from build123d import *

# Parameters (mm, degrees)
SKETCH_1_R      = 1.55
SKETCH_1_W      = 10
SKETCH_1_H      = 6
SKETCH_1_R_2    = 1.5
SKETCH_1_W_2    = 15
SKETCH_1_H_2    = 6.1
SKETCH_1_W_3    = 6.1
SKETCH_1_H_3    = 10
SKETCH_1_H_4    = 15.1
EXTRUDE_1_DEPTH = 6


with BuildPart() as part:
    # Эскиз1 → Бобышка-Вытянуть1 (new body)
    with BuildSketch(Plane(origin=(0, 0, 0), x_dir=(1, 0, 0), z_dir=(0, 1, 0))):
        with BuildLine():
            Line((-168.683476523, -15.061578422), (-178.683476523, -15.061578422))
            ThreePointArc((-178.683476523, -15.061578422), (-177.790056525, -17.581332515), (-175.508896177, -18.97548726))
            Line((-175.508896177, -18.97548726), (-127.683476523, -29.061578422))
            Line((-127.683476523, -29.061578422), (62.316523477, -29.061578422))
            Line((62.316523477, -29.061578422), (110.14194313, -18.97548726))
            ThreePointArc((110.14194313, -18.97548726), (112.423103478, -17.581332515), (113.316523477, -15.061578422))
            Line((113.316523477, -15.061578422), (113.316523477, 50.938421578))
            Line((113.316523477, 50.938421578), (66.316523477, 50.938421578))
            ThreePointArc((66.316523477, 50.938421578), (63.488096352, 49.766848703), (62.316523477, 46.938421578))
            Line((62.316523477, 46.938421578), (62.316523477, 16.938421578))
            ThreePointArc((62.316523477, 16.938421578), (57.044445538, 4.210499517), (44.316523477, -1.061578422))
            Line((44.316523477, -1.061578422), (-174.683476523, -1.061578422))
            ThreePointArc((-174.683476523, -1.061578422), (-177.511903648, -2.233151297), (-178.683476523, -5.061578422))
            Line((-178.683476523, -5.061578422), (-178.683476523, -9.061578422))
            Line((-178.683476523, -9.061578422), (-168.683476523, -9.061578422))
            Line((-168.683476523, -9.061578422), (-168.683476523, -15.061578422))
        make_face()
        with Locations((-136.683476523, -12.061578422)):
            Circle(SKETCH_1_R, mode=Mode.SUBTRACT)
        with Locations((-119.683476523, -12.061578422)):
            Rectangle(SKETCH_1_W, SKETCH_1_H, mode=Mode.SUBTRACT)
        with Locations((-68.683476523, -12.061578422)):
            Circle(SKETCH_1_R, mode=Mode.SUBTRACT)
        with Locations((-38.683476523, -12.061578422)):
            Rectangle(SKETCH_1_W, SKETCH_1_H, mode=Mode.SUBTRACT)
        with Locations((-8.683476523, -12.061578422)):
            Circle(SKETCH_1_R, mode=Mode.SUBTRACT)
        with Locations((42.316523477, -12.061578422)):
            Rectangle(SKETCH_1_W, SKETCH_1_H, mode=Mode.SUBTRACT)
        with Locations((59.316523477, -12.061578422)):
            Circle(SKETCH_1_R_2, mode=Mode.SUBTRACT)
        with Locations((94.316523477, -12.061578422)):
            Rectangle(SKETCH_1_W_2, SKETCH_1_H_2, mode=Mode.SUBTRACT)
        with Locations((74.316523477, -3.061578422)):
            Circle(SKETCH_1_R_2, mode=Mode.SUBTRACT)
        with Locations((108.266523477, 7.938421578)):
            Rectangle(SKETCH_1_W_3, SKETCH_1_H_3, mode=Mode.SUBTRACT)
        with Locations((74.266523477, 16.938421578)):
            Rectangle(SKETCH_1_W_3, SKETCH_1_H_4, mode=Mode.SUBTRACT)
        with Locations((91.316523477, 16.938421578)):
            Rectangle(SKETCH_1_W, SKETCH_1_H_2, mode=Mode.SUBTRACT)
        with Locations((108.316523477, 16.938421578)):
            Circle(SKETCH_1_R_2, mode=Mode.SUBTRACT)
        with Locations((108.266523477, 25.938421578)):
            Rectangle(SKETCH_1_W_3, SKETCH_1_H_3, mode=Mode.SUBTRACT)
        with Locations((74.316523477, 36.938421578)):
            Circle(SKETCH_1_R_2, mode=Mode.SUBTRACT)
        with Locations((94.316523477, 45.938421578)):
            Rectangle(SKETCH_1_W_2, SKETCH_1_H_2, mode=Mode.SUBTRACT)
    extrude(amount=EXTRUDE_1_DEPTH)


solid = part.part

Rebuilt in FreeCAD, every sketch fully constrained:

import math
import FreeCAD as App
import Part
import Sketcher
Q = App.Units.Quantity


def add_polygon(sketch, points):
    """Adds a closed chain of lines whose ends are joined by coincident constraints."""
    first, n = sketch.GeometryCount, len(points)
    for a, b in zip(points, points[1:] + points[:1]):
        sketch.addGeometry(Part.LineSegment(App.Vector(*a, 0), App.Vector(*b, 0)), False)
    for i in range(n):
        sketch.addConstraint(Sketcher.Constraint("Coincident", first + i, 2, first + (i + 1) % n, 1))

doc = App.newDocument("Part")
body = doc.addObject("PartDesign::Body", "Body")

# Sketch on XZ plane
sketch1 = body.newObject("Sketcher::SketchObject", "Sketch")
sketch1.AttachmentSupport = (doc.getObject("XZ_Plane"), [""])
sketch1.MapMode = "FlatFace"
sketch1.addGeometry(Part.LineSegment(App.Vector(-168.683477, 15.061578, 0), App.Vector(-178.683477, 15.061578, 0)), False)  # 0
sketch1.addGeometry(Part.ArcOfCircle(Part.Circle(App.Vector(-174.683477, 15.061578, 0), App.Vector(0, 0, 1), 4), math.radians(101.908826), math.radians(180)), False)  # 1
sketch1.addGeometry(Part.LineSegment(App.Vector(-175.508896, 18.975487, 0), App.Vector(-127.683477, 29.061578, 0)), False)  # 2
sketch1.addGeometry(Part.LineSegment(App.Vector(-127.683477, 29.061578, 0), App.Vector(62.316523, 29.061578, 0)), False)  # 3
sketch1.addGeometry(Part.LineSegment(App.Vector(62.316523, 29.061578, 0), App.Vector(110.141943, 18.975487, 0)), False)  # 4
sketch1.addGeometry(Part.ArcOfCircle(Part.Circle(App.Vector(109.316523, 15.061578, 0), App.Vector(0, 0, 1), 4), math.radians(0), math.radians(78.091174)), False)  # 5
sketch1.addGeometry(Part.LineSegment(App.Vector(113.316523, 15.061578, 0), App.Vector(113.316523, -50.938422, 0)), False)  # 6
sketch1.addGeometry(Part.LineSegment(App.Vector(113.316523, -50.938422, 0), App.Vector(66.316523, -50.938422, 0)), False)  # 7
sketch1.addGeometry(Part.ArcOfCircle(Part.Circle(App.Vector(66.316523, -46.938422, 0), App.Vector(0, 0, 1), 4), math.radians(180), math.radians(270)), False)  # 8
sketch1.addGeometry(Part.LineSegment(App.Vector(62.316523, -46.938422, 0), App.Vector(62.316523, -16.938422, 0)), False)  # 9
sketch1.addGeometry(Part.ArcOfCircle(Part.Circle(App.Vector(44.316523, -16.938422, 0), App.Vector(0, 0, 1), 18), math.radians(0), math.radians(90)), False)  # 10
sketch1.addGeometry(Part.LineSegment(App.Vector(44.316523, 1.061578, 0), App.Vector(-174.683477, 1.061578, 0)), False)  # 11
sketch1.addGeometry(Part.ArcOfCircle(Part.Circle(App.Vector(-174.683477, 5.061578, 0), App.Vector(0, 0, 1), 4), math.radians(180), math.radians(270)), False)  # 12
sketch1.addGeometry(Part.LineSegment(App.Vector(-178.683477, 5.061578, 0), App.Vector(-178.683477, 9.061578, 0)), False)  # 13
sketch1.addGeometry(Part.LineSegment(App.Vector(-178.683477, 9.061578, 0), App.Vector(-168.683477, 9.061578, 0)), False)  # 14
sketch1.addGeometry(Part.LineSegment(App.Vector(-168.683477, 9.061578, 0), App.Vector(-168.683477, 15.061578, 0)), False)  # 15
sketch1.addGeometry(Part.Circle(App.Vector(-136.683477, 12.061578, 0), App.Vector(0, 0, 1), 1.55), False)  # 16
add_polygon(sketch1, [(-114.683477, 15.061578), (-124.683477, 15.061578), (-124.683477, 9.061578), (-114.683477, 9.061578)])  # lines 17-20
sketch1.addGeometry(Part.Circle(App.Vector(-68.683477, 12.061578, 0), App.Vector(0, 0, 1), 1.55), False)  # 21
add_polygon(sketch1, [(-33.683477, 15.061578), (-43.683477, 15.061578), (-43.683477, 9.061578), (-33.683477, 9.061578)])  # lines 22-25
sketch1.addGeometry(Part.Circle(App.Vector(-8.683477, 12.061578, 0), App.Vector(0, 0, 1), 1.55), False)  # 26
add_polygon(sketch1, [(47.316523, 15.061578), (37.316523, 15.061578), (37.316523, 9.061578), (47.316523, 9.061578)])  # lines 27-30
sketch1.addGeometry(Part.Circle(App.Vector(59.316523, 12.061578, 0), App.Vector(0, 0, 1), 1.5), False)  # 31
add_polygon(sketch1, [(101.816523, 15.111578), (86.816523, 15.111578), (86.816523, 9.011578), (101.816523, 9.011578)])  # lines 32-35
sketch1.addGeometry(Part.Circle(App.Vector(74.316523, 3.061578, 0), App.Vector(0, 0, 1), 1.5), False)  # 36
add_polygon(sketch1, [(111.316523, -2.938422), (105.216523, -2.938422), (105.216523, -12.938422), (111.316523, -12.938422)])  # lines 37-40
add_polygon(sketch1, [(77.316523, -9.388422), (71.216523, -9.388422), (71.216523, -24.488422), (77.316523, -24.488422)])  # lines 41-44
add_polygon(sketch1, [(96.316523, -13.888422), (86.316523, -13.888422), (86.316523, -19.988422), (96.316523, -19.988422)])  # lines 45-48
sketch1.addGeometry(Part.Circle(App.Vector(108.316523, -16.938422, 0), App.Vector(0, 0, 1), 1.5), False)  # 49
add_polygon(sketch1, [(111.316523, -20.938422), (105.216523, -20.938422), (105.216523, -30.938422), (111.316523, -30.938422)])  # lines 50-53
sketch1.addGeometry(Part.Circle(App.Vector(74.316523, -36.938422, 0), App.Vector(0, 0, 1), 1.5), False)  # 54
add_polygon(sketch1, [(101.816523, -42.888422), (86.816523, -42.888422), (86.816523, -48.988422), (101.816523, -48.988422)])  # lines 55-58
sketch1.addConstraint([
    Sketcher.Constraint("Coincident", 0, 2, 1, 2),
    Sketcher.Constraint("Tangent", 1, 1, 2, 1),
    Sketcher.Constraint("Coincident", 2, 2, 3, 1),
    Sketcher.Constraint("Coincident", 3, 2, 4, 1),
    Sketcher.Constraint("Tangent", 4, 2, 5, 2),
    Sketcher.Constraint("Tangent", 5, 1, 6, 1),
    Sketcher.Constraint("Coincident", 6, 2, 7, 1),
    Sketcher.Constraint("Tangent", 7, 2, 8, 2),
    Sketcher.Constraint("Tangent", 8, 1, 9, 1),
    Sketcher.Constraint("Tangent", 9, 2, 10, 1),
    Sketcher.Constraint("Tangent", 10, 2, 11, 1),
    Sketcher.Constraint("Tangent", 11, 2, 12, 2),
    Sketcher.Constraint("Tangent", 12, 1, 13, 1),
    Sketcher.Constraint("Coincident", 13, 2, 14, 1),
    Sketcher.Constraint("Coincident", 14, 2, 15, 1),
    Sketcher.Constraint("Coincident", 15, 2, 0, 1),
    Sketcher.Constraint("Horizontal", 0),
    Sketcher.Constraint("Horizontal", 3),
    Sketcher.Constraint("Vertical", 6),
    Sketcher.Constraint("Horizontal", 7),
    Sketcher.Constraint("Vertical", 9),
    Sketcher.Constraint("Horizontal", 11),
    Sketcher.Constraint("Vertical", 13),
    Sketcher.Constraint("Horizontal", 14),
    Sketcher.Constraint("Vertical", 15),
    Sketcher.Constraint("Horizontal", 17),
    Sketcher.Constraint("Vertical", 18),
    Sketcher.Constraint("Horizontal", 19),
    Sketcher.Constraint("Vertical", 20),
    Sketcher.Constraint("Horizontal", 22),
    Sketcher.Constraint("Vertical", 23),
    Sketcher.Constraint("Horizontal", 24),
    Sketcher.Constraint("Vertical", 25),
    Sketcher.Constraint("Horizontal", 27),
    Sketcher.Constraint("Vertical", 28),
    Sketcher.Constraint("Horizontal", 29),
    Sketcher.Constraint("Vertical", 30),
    Sketcher.Constraint("Horizontal", 32),
    Sketcher.Constraint("Vertical", 33),
    Sketcher.Constraint("Horizontal", 34),
    Sketcher.Constraint("Vertical", 35),
    Sketcher.Constraint("Horizontal", 37),
    Sketcher.Constraint("Vertical", 38),
    Sketcher.Constraint("Horizontal", 39),
    Sketcher.Constraint("Vertical", 40),
    Sketcher.Constraint("Horizontal", 41),
    Sketcher.Constraint("Vertical", 42),
    Sketcher.Constraint("Horizontal", 43),
    Sketcher.Constraint("Vertical", 44),
    Sketcher.Constraint("Horizontal", 45),
    Sketcher.Constraint("Vertical", 46),
    Sketcher.Constraint("Horizontal", 47),
    Sketcher.Constraint("Vertical", 48),
    Sketcher.Constraint("Horizontal", 50),
    Sketcher.Constraint("Vertical", 51),
    Sketcher.Constraint("Horizontal", 52),
    Sketcher.Constraint("Vertical", 53),
    Sketcher.Constraint("Horizontal", 55),
    Sketcher.Constraint("Vertical", 56),
    Sketcher.Constraint("Horizontal", 57),
    Sketcher.Constraint("Vertical", 58),
    Sketcher.Constraint("Equal", 1, 5),
    Sketcher.Constraint("Equal", 5, 8),
    Sketcher.Constraint("Equal", 8, 12),
    Sketcher.Constraint("Equal", 16, 21),
    Sketcher.Constraint("Equal", 21, 26),
    Sketcher.Constraint("Equal", 31, 36),
    Sketcher.Constraint("Equal", 36, 49),
    Sketcher.Constraint("Equal", 49, 54),
    Sketcher.Constraint("Horizontal", 1, 3, 5, 3),
    Sketcher.Constraint("Horizontal", 16, 3, 21, 3),
    Sketcher.Constraint("Horizontal", 21, 3, 26, 3),
    Sketcher.Constraint("Horizontal", 26, 3, 31, 3),
    Sketcher.Constraint("Horizontal", 10, 3, 49, 3),
    Sketcher.Constraint("Horizontal", 5, 3, 0, 2),
    Sketcher.Constraint("Horizontal", 1, 1, 4, 2),
    Sketcher.Constraint("Horizontal", 15, 2, 17, 2),
    Sketcher.Constraint("Horizontal", 14, 2, 18, 2),
    Sketcher.Constraint("Horizontal", 20, 2, 22, 2),
    Sketcher.Constraint("Horizontal", 19, 2, 23, 2),
    Sketcher.Constraint("Horizontal", 25, 2, 27, 2),
    Sketcher.Constraint("Horizontal", 24, 2, 28, 2),
    Sketcher.Constraint("Vertical", 1, 3, 12, 3),
    Sketcher.Constraint("Vertical", 36, 3, 54, 3),
    Sketcher.Constraint("Vertical", 3, 2, 8, 1),
    Sketcher.Constraint("Vertical", 38, 2, 50, 2),
    Sketcher.Constraint("Vertical", 40, 2, 52, 2),
    Sketcher.Constraint("Vertical", 33, 2, 55, 2),
    Sketcher.Constraint("Vertical", 35, 2, 57, 2),
    Sketcher.Constraint("Equal", 14, 17),
    Sketcher.Constraint("Equal", 19, 22),
    Sketcher.Constraint("Equal", 24, 27),
    Sketcher.Constraint("Equal", 39, 41),
    Sketcher.Constraint("Equal", 29, 45),
    Sketcher.Constraint("Equal", 52, 33),
    Sketcher.Constraint("Equal", 47, 38),
    Sketcher.Constraint("Equal", 35, 46),
    Sketcher.Constraint("Equal", 40, 51),
    Sketcher.Constraint("Equal", 48, 56),
    Sketcher.Constraint("Diameter", 31, Q("3 mm")),
    Sketcher.Constraint("Radius", 1, Q("4 mm")),
    Sketcher.Constraint("Radius", 10, Q("18 mm")),
    Sketcher.Constraint("Diameter", 16, Q("3.1 mm")),
    Sketcher.Constraint("DistanceX", 0, 2, 0, 1, Q("10 mm")),
    Sketcher.Constraint("DistanceX", 3, 1, 3, 2, Q("190 mm")),
    Sketcher.Constraint("DistanceX", 7, 2, 7, 1, Q("47 mm")),
    Sketcher.Constraint("DistanceX", 32, 2, 32, 1, Q("15 mm")),
    Sketcher.Constraint("DistanceY", 6, 2, 6, 1, Q("66 mm")),
    Sketcher.Constraint("DistanceY", 9, 1, 9, 2, Q("30 mm")),
    Sketcher.Constraint("DistanceY", 13, 1, 13, 2, Q("4 mm")),
    Sketcher.Constraint("DistanceX", 37, 2, 37, 1, Q("6.1 mm")),
    Sketcher.Constraint("DistanceY", 42, 2, 42, 1, Q("15.1 mm")),
    Sketcher.Constraint("DistanceY", -1, 1, 1, 3, Q("15.061578 mm")),
    Sketcher.Constraint("DistanceY", -1, 1, 16, 3, Q("12.061578 mm")),
    Sketcher.Constraint("DistanceY", -1, 1, 36, 3, Q("3.061578 mm")),
    Sketcher.Constraint("DistanceY", 54, 3, -1, 1, Q("36.938422 mm")),
    Sketcher.Constraint("DistanceY", -1, 1, 2, 2, Q("29.061578 mm")),
    Sketcher.Constraint("DistanceY", -1, 1, 32, 2, Q("15.111578 mm")),
    Sketcher.Constraint("DistanceY", 37, 2, -1, 1, Q("2.938422 mm")),
    Sketcher.Constraint("DistanceY", 41, 2, -1, 1, Q("9.388422 mm")),
    Sketcher.Constraint("DistanceY", 45, 2, -1, 1, Q("13.888422 mm")),
    Sketcher.Constraint("DistanceY", 50, 2, -1, 1, Q("20.938422 mm")),
    Sketcher.Constraint("DistanceY", 55, 2, -1, 1, Q("42.888422 mm")),
    Sketcher.Constraint("DistanceX", 1, 3, -1, 1, Q("174.683477 mm")),
    Sketcher.Constraint("DistanceX", 16, 3, -1, 1, Q("136.683477 mm")),
    Sketcher.Constraint("DistanceX", 21, 3, -1, 1, Q("68.683477 mm")),
    Sketcher.Constraint("DistanceX", 26, 3, -1, 1, Q("8.683477 mm")),
    Sketcher.Constraint("DistanceX", -1, 1, 31, 3, Q("59.316523 mm")),
    Sketcher.Constraint("DistanceX", -1, 1, 36, 3, Q("74.316523 mm")),
    Sketcher.Constraint("DistanceX", -1, 1, 49, 3, Q("108.316523 mm")),
    Sketcher.Constraint("DistanceX", 17, 2, -1, 1, Q("124.683477 mm")),
    Sketcher.Constraint("DistanceX", 22, 2, -1, 1, Q("43.683477 mm")),
    Sketcher.Constraint("DistanceX", -1, 1, 27, 2, Q("37.316523 mm")),
    Sketcher.Constraint("DistanceX", -1, 1, 32, 2, Q("86.816523 mm")),
    Sketcher.Constraint("DistanceX", -1, 1, 37, 2, Q("105.216523 mm")),
    Sketcher.Constraint("DistanceX", -1, 1, 41, 2, Q("71.216523 mm")),
    Sketcher.Constraint("DistanceX", -1, 1, 45, 2, Q("86.316523 mm")),
])
pad1 = body.newObject("PartDesign::Pad", "Pad")
pad1.Profile = sketch1
pad1.Length = 6
pad1.Reversed = True

doc.recompute()
